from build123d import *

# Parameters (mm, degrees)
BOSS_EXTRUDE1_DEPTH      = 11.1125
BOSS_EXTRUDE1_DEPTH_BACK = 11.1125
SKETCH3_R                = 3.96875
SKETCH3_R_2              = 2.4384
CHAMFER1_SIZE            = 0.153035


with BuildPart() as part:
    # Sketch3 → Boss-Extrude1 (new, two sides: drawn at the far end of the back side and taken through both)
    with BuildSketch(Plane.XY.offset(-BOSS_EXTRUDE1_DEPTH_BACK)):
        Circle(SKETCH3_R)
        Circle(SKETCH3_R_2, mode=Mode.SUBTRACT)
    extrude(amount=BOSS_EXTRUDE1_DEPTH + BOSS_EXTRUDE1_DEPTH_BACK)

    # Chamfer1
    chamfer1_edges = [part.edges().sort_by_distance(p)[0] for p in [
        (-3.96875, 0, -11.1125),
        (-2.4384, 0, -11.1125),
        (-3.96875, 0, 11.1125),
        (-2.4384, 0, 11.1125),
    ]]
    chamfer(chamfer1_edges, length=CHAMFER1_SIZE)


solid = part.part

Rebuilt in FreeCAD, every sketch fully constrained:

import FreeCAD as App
import Part
import Sketcher

V = App.Vector
Q = App.Units.Quantity


def edges_at(feature, points):
    """Names of the edges that pass closest to the given points."""
    edges = feature.Shape.Edges
    near = lambda p: min(range(len(edges)), key=lambda i: edges[i].distToShape(Part.Vertex(*p))[0])
    return sorted({f"Edge{near(p) + 1}" for p in points})

doc = App.newDocument("Part")
body = doc.addObject("PartDesign::Body", "Body")

# Sketch on XY plane
sketch1 = doc.addObject("Sketcher::SketchObject", "Sketch")
body.addObject(sketch1)
sketch1.AttachmentSupport = (doc.XY_Plane, [""])
sketch1.MapMode = "FlatFace"
sketch1.addGeometry([
    Part.Circle(V(0, 0, 0), V(0, 0, 1), 3.96875),
    Part.Circle(V(0, 0, 0), V(0, 0, 1), 2.4384),
], False)
sketch1.addConstraint([
    Sketcher.Constraint("Coincident", 0, 3, -1, 1),
    Sketcher.Constraint("Coincident", 1, 3, -1, 1),
    Sketcher.Constraint("Diameter", 0, Q("0.3125 in")),
    Sketcher.Constraint("Diameter", 1, Q("0.192 in")),
])
pad1 = doc.addObject("PartDesign::Pad", "Pad")
body.addObject(pad1)
pad1.Profile = sketch1
pad1.Type = "TwoLengths"
pad1.Length = Q("0.4375 in")
pad1.Length2 = Q("0.4375 in")
doc.recompute()

chamfer = doc.addObject("PartDesign::Chamfer", "Chamfer")
body.addObject(chamfer)
chamfer.Base = (pad1, edges_at(pad1, [
    (-3.969, 0, -11.113),
    (-2.438, 0, -11.113),
    (-3.969, 0, 11.113),
    (-2.438, 0, 11.113),
]))
chamfer.Size = 0.153035

doc.recompute()
